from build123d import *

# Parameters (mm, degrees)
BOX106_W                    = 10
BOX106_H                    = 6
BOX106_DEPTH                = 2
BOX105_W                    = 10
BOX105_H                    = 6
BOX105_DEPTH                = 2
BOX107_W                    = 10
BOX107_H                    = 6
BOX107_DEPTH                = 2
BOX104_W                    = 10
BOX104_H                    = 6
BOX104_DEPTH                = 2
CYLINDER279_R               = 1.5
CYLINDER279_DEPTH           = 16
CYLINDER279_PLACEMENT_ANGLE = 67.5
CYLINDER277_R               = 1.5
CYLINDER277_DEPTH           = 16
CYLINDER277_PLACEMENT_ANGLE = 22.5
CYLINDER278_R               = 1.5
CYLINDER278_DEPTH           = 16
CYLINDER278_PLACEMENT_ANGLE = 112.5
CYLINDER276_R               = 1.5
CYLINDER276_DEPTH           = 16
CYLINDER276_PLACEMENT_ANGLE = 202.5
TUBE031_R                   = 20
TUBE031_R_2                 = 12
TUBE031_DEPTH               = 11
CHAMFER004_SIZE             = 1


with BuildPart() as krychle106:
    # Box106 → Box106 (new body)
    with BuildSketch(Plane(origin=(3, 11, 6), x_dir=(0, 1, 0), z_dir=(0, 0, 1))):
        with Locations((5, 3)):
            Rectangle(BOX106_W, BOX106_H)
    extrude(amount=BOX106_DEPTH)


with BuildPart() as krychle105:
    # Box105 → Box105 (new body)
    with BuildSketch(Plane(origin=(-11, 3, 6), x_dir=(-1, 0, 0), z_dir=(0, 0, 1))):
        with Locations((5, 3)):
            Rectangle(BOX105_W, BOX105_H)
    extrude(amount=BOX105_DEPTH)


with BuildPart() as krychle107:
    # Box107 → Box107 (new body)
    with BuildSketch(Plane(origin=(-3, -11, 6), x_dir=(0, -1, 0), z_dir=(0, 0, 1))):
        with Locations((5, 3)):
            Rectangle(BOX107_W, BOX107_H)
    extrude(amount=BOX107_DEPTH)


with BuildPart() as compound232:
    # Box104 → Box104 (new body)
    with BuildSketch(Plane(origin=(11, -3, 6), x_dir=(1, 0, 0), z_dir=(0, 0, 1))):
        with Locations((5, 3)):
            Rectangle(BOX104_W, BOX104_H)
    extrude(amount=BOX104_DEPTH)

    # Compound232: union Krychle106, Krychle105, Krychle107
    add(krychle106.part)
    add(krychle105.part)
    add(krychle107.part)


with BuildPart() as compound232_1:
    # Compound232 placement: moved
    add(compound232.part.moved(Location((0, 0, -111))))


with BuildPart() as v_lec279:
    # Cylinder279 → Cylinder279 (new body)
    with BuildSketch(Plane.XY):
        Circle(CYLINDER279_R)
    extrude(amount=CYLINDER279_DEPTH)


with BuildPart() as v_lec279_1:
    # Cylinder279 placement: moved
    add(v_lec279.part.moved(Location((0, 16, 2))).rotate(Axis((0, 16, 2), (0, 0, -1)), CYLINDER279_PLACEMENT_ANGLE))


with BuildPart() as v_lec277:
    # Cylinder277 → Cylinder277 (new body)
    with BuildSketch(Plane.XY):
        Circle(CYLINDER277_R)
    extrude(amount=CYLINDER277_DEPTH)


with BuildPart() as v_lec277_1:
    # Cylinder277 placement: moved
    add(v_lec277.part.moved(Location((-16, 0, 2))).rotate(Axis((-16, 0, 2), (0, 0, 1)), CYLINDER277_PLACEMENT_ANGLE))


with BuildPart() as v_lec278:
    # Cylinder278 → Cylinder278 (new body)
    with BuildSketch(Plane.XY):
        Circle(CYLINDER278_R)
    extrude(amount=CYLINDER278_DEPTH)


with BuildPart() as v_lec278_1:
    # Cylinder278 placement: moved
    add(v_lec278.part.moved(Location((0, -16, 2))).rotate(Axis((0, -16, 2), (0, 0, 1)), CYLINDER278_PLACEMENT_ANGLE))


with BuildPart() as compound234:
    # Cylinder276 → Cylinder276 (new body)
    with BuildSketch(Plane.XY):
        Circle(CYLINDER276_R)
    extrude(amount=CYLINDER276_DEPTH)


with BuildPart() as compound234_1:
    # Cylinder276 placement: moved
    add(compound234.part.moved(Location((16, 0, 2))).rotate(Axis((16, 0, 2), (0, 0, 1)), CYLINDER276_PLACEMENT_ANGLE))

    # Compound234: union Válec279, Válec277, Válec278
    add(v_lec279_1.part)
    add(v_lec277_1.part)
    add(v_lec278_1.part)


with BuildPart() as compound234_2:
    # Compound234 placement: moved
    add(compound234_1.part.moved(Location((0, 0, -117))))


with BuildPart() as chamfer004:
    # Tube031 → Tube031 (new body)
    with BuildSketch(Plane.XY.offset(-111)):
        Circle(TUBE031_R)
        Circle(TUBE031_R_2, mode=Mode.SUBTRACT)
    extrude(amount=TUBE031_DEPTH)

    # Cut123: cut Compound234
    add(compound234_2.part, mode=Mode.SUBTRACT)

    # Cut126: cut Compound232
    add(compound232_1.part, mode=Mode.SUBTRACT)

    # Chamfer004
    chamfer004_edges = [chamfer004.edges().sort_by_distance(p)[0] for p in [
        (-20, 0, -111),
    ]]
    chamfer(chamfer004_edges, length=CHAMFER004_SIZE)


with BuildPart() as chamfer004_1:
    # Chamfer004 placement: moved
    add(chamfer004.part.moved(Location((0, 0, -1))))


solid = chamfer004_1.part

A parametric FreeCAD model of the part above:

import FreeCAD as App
import Part
import Sketcher


def edges_at(feature, points):
    """Names of the edges that pass closest to the given points."""
    edges = feature.Shape.Edges
    near = lambda p: min(range(len(edges)), key=lambda i: edges[i].distToShape(Part.Vertex(*p))[0])
    return sorted({f"Edge{near(p) + 1}" for p in points})

doc = App.newDocument("Part")
body = doc.addObject("PartDesign::Body", "Body")

sketch1 = body.newObject("Sketcher::SketchObject", "Sketch")
sketch1.AttachmentSupport = (doc.getObject("XY_Plane"), [""])
sketch1.MapMode = "FlatFace"
sketch1.AttachmentOffset = App.Placement(App.Vector(0, 0, 6), App.Rotation())
sketch1.addGeometry(Part.LineSegment(App.Vector(-3, 11, 0), App.Vector(3, 11, 0)), False)
sketch1.addGeometry(Part.LineSegment(App.Vector(3, 11, 0), App.Vector(3, 21, 0)), False)
sketch1.addGeometry(Part.LineSegment(App.Vector(3, 21, 0), App.Vector(-3, 21, 0)), False)
sketch1.addGeometry(Part.LineSegment(App.Vector(-3, 21, 0), App.Vector(-3, 11, 0)), False)
sketch1.addConstraint(Sketcher.Constraint("Coincident", 0, 2, 1, 1))
sketch1.addConstraint(Sketcher.Constraint("Coincident", 1, 2, 2, 1))
sketch1.addConstraint(Sketcher.Constraint("Coincident", 2, 2, 3, 1))
sketch1.addConstraint(Sketcher.Constraint("Coincident", 3, 2, 0, 1))
sketch1.addConstraint(Sketcher.Constraint("Horizontal", 0))
sketch1.addConstraint(Sketcher.Constraint("Vertical", 1))
sketch1.addConstraint(Sketcher.Constraint("Horizontal", 2))
sketch1.addConstraint(Sketcher.Constraint("Vertical", 3))
sketch1.addConstraint(Sketcher.Constraint("DistanceX", 0, 1, 0, 2, 6.0))
sketch1.addConstraint(Sketcher.Constraint("DistanceY", 1, 1, 1, 2, 10.0))
sketch1.addConstraint(Sketcher.Constraint("DistanceX", -1, 1, 0, 2, 3.0))
sketch1.addConstraint(Sketcher.Constraint("DistanceY", -1, 1, 0, 2, 11.0))
pad1 = body.newObject("PartDesign::Pad", "Pad")
pad1.Profile = sketch1
pad1.Length = 2
body2 = doc.addObject("PartDesign::Body", "Body001")

sketch2 = body2.newObject("Sketcher::SketchObject", "Sketch001")
sketch2.AttachmentSupport = (doc.getObject("XY_Plane001"), [""])
sketch2.MapMode = "FlatFace"
sketch2.AttachmentOffset = App.Placement(App.Vector(0, 0, 6), App.Rotation())
sketch2.addGeometry(Part.LineSegment(App.Vector(-11, -3, 0), App.Vector(-11, 3, 0)), False)
sketch2.addGeometry(Part.LineSegment(App.Vector(-11, 3, 0), App.Vector(-21, 3, 0)), False)
sketch2.addGeometry(Part.LineSegment(App.Vector(-21, 3, 0), App.Vector(-21, -3, 0)), False)
sketch2.addGeometry(Part.LineSegment(App.Vector(-21, -3, 0), App.Vector(-11, -3, 0)), False)
sketch2.addConstraint(Sketcher.Constraint("Coincident", 0, 2, 1, 1))
sketch2.addConstraint(Sketcher.Constraint("Coincident", 1, 2, 2, 1))
sketch2.addConstraint(Sketcher.Constraint("Coincident", 2, 2, 3, 1))
sketch2.addConstraint(Sketcher.Constraint("Coincident", 3, 2, 0, 1))
sketch2.addConstraint(Sketcher.Constraint("Vertical", 0))
sketch2.addConstraint(Sketcher.Constraint("Horizontal", 1))
sketch2.addConstraint(Sketcher.Constraint("Vertical", 2))
sketch2.addConstraint(Sketcher.Constraint("Horizontal", 3))
sketch2.addConstraint(Sketcher.Constraint("DistanceX", 1, 2, 1, 1, 10.0))
sketch2.addConstraint(Sketcher.Constraint("DistanceY", 0, 1, 0, 2, 6.0))
sketch2.addConstraint(Sketcher.Constraint("DistanceX", 0, 2, -1, 1, 11.0))
sketch2.addConstraint(Sketcher.Constraint("DistanceY", -1, 1, 0, 2, 3.0))
pad2 = body2.newObject("PartDesign::Pad", "Pad001")
pad2.Profile = sketch2
pad2.Length = 2
body3 = doc.addObject("PartDesign::Body", "Body002")

sketch3 = body3.newObject("Sketcher::SketchObject", "Sketch002")
sketch3.AttachmentSupport = (doc.getObject("XY_Plane002"), [""])
sketch3.MapMode = "FlatFace"
sketch3.AttachmentOffset = App.Placement(App.Vector(0, 0, 6), App.Rotation())
sketch3.addGeometry(Part.LineSegment(App.Vector(3, -11, 0), App.Vector(-3, -11, 0)), False)
sketch3.addGeometry(Part.LineSegment(App.Vector(-3, -11, 0), App.Vector(-3, -21, 0)), False)
sketch3.addGeometry(Part.LineSegment(App.Vector(-3, -21, 0), App.Vector(3, -21, 0)), False)
sketch3.addGeometry(Part.LineSegment(App.Vector(3, -21, 0), App.Vector(3, -11, 0)), False)
sketch3.addConstraint(Sketcher.Constraint("Coincident", 0, 2, 1, 1))
sketch3.addConstraint(Sketcher.Constraint("Coincident", 1, 2, 2, 1))
sketch3.addConstraint(Sketcher.Constraint("Coincident", 2, 2, 3, 1))
sketch3.addConstraint(Sketcher.Constraint("Coincident", 3, 2, 0, 1))
sketch3.addConstraint(Sketcher.Constraint("Horizontal", 0))
sketch3.addConstraint(Sketcher.Constraint("Vertical", 1))
sketch3.addConstraint(Sketcher.Constraint("Horizontal", 2))
sketch3.addConstraint(Sketcher.Constraint("Vertical", 3))
sketch3.addConstraint(Sketcher.Constraint("DistanceX", 0, 2, 0, 1, 6.0))
sketch3.addConstraint(Sketcher.Constraint("DistanceY", 1, 2, 1, 1, 10.0))
sketch3.addConstraint(Sketcher.Constraint("DistanceX", 0, 2, -1, 1, 3.0))
sketch3.addConstraint(Sketcher.Constraint("DistanceY", 0, 2, -1, 1, 11.0))
pad3 = body3.newObject("PartDesign::Pad", "Pad002")
pad3.Profile = sketch3
pad3.Length = 2
body4 = doc.addObject("PartDesign::Body", "Body003")
body4.AllowCompound = True

sketch4 = body4.newObject("Sketcher::SketchObject", "Sketch003")
sketch4.AttachmentSupport = (doc.getObject("XY_Plane003"), [""])
sketch4.MapMode = "FlatFace"
sketch4.AttachmentOffset = App.Placement(App.Vector(0, 0, 6), App.Rotation())
sketch4.addGeometry(Part.LineSegment(App.Vector(11, 3, 0), App.Vector(11, -3, 0)), False)
sketch4.addGeometry(Part.LineSegment(App.Vector(11, -3, 0), App.Vector(21, -3, 0)), False)
sketch4.addGeometry(Part.LineSegment(App.Vector(21, -3, 0), App.Vector(21, 3, 0)), False)
sketch4.addGeometry(Part.LineSegment(App.Vector(21, 3, 0), App.Vector(11, 3, 0)), False)
sketch4.addConstraint(Sketcher.Constraint("Coincident", 0, 2, 1, 1))
sketch4.addConstraint(Sketcher.Constraint("Coincident", 1, 2, 2, 1))
sketch4.addConstraint(Sketcher.Constraint("Coincident", 2, 2, 3, 1))
sketch4.addConstraint(Sketcher.Constraint("Coincident", 3, 2, 0, 1))
sketch4.addConstraint(Sketcher.Constraint("Vertical", 0))
sketch4.addConstraint(Sketcher.Constraint("Horizontal", 1))
sketch4.addConstraint(Sketcher.Constraint("Vertical", 2))
sketch4.addConstraint(Sketcher.Constraint("Horizontal", 3))
sketch4.addConstraint(Sketcher.Constraint("DistanceX", 1, 1, 1, 2, 10.0))
sketch4.addConstraint(Sketcher.Constraint("DistanceY", 0, 2, 0, 1, 6.0))
sketch4.addConstraint(Sketcher.Constraint("DistanceX", -1, 1, 0, 2, 11.0))
sketch4.addConstraint(Sketcher.Constraint("DistanceY", 0, 2, -1, 1, 3.0))
pad4 = body4.newObject("PartDesign::Pad", "Pad003")
pad4.Profile = sketch4
pad4.Length = 2
doc.recompute()

boolean = body4.newObject("PartDesign::Boolean", "Boolean")
boolean.Type = "Fuse"
boolean.addObjects([body])
doc.recompute()

boolean2 = body4.newObject("PartDesign::Boolean", "Boolean001")
boolean2.Type = "Fuse"
boolean2.addObjects([body2])
doc.recompute()

boolean3 = body4.newObject("PartDesign::Boolean", "Boolean002")
boolean3.Type = "Fuse"
boolean3.addObjects([body3])
body5 = doc.addObject("PartDesign::Body", "Body004")
body5.AllowCompound = True
doc.recompute()

body4.Placement = App.Placement(App.Vector(0, 0, -111), App.Rotation(App.Vector(0, 0, 1), 0))
boolean4 = body5.newObject("PartDesign::Boolean", "Boolean003")
boolean4.Type = "Fuse"
boolean4.addObjects([body4])
body6 = doc.addObject("PartDesign::Body", "Body005")

sketch5 = body6.newObject("Sketcher::SketchObject", "Sketch004")
sketch5.AttachmentSupport = (doc.getObject("XY_Plane005"), [""])
sketch5.MapMode = "FlatFace"
sketch5.addGeometry(Part.Circle(App.Vector(0, 0, 0), App.Vector(0, 0, 1), 1.5), False)
sketch5.addConstraint(Sketcher.Constraint("Coincident", 0, 3, -1, 1))
sketch5.addConstraint(Sketcher.Constraint("Diameter", 0, 3.0))
pad5 = body6.newObject("PartDesign::Pad", "Pad004")
pad5.Profile = sketch5
pad5.Length = 16
body7 = doc.addObject("PartDesign::Body", "Body006")
doc.recompute()

body6.Placement = App.Placement(App.Vector(0, 16, 2), App.Rotation(App.Vector(0, 0, -1), 67.5))
boolean5 = body7.newObject("PartDesign::Boolean", "Boolean004")
boolean5.Type = "Fuse"
boolean5.addObjects([body6])
body8 = doc.addObject("PartDesign::Body", "Body007")

sketch6 = body8.newObject("Sketcher::SketchObject", "Sketch005")
sketch6.AttachmentSupport = (doc.getObject("XY_Plane007"), [""])
sketch6.MapMode = "FlatFace"
sketch6.addGeometry(Part.Circle(App.Vector(0, 0, 0), App.Vector(0, 0, 1), 1.5), False)
sketch6.addConstraint(Sketcher.Constraint("Coincident", 0, 3, -1, 1))
sketch6.addConstraint(Sketcher.Constraint("Diameter", 0, 3.0))
pad6 = body8.newObject("PartDesign::Pad", "Pad005")
pad6.Profile = sketch6
pad6.Length = 16
body9 = doc.addObject("PartDesign::Body", "Body008")
doc.recompute()

body8.Placement = App.Placement(App.Vector(-16, 0, 2), App.Rotation(App.Vector(0, 0, 1), 22.5))
boolean6 = body9.newObject("PartDesign::Boolean", "Boolean005")
boolean6.Type = "Fuse"
boolean6.addObjects([body8])
body10 = doc.addObject("PartDesign::Body", "Body009")

sketch7 = body10.newObject("Sketcher::SketchObject", "Sketch006")
sketch7.AttachmentSupport = (doc.getObject("XY_Plane009"), [""])
sketch7.MapMode = "FlatFace"
sketch7.addGeometry(Part.Circle(App.Vector(0, 0, 0), App.Vector(0, 0, 1), 1.5), False)
sketch7.addConstraint(Sketcher.Constraint("Coincident", 0, 3, -1, 1))
sketch7.addConstraint(Sketcher.Constraint("Diameter", 0, 3.0))
pad7 = body10.newObject("PartDesign::Pad", "Pad006")
pad7.Profile = sketch7
pad7.Length = 16
body11 = doc.addObject("PartDesign::Body", "Body010")
doc.recompute()

body10.Placement = App.Placement(App.Vector(0, -16, 2), App.Rotation(App.Vector(0, 0, 1), 112.5))
boolean7 = body11.newObject("PartDesign::Boolean", "Boolean006")
boolean7.Type = "Fuse"
boolean7.addObjects([body10])
body12 = doc.addObject("PartDesign::Body", "Body011")

sketch8 = body12.newObject("Sketcher::SketchObject", "Sketch007")
sketch8.AttachmentSupport = (doc.getObject("XY_Plane011"), [""])
sketch8.MapMode = "FlatFace"
sketch8.addGeometry(Part.Circle(App.Vector(0, 0, 0), App.Vector(0, 0, 1), 1.5), False)
sketch8.addConstraint(Sketcher.Constraint("Coincident", 0, 3, -1, 1))
sketch8.addConstraint(Sketcher.Constraint("Diameter", 0, 3.0))
pad8 = body12.newObject("PartDesign::Pad", "Pad007")
pad8.Profile = sketch8
pad8.Length = 16
body13 = doc.addObject("PartDesign::Body", "Body012")
body13.AllowCompound = True
doc.recompute()

body12.Placement = App.Placement(App.Vector(16, 0, 2), App.Rotation(App.Vector(0, 0, 1), 202.5))
boolean8 = body13.newObject("PartDesign::Boolean", "Boolean007")
boolean8.Type = "Fuse"
boolean8.addObjects([body12])
doc.recompute()

boolean9 = body13.newObject("PartDesign::Boolean", "Boolean008")
boolean9.Type = "Fuse"
boolean9.addObjects([body7])
doc.recompute()

boolean10 = body13.newObject("PartDesign::Boolean", "Boolean009")
boolean10.Type = "Fuse"
boolean10.addObjects([body9])
doc.recompute()

boolean11 = body13.newObject("PartDesign::Boolean", "Boolean010")
boolean11.Type = "Fuse"
boolean11.addObjects([body11])
body14 = doc.addObject("PartDesign::Body", "Body013")
body14.AllowCompound = True
doc.recompute()

body13.Placement = App.Placement(App.Vector(0, 0, -117), App.Rotation(App.Vector(0, 0, 1), 0))
boolean12 = body14.newObject("PartDesign::Boolean", "Boolean011")
boolean12.Type = "Fuse"
boolean12.addObjects([body13])
body15 = doc.addObject("PartDesign::Body", "Body014")

sketch9 = body15.newObject("Sketcher::SketchObject", "Sketch008")
sketch9.AttachmentSupport = (doc.getObject("XY_Plane014"), [""])
sketch9.MapMode = "FlatFace"
sketch9.AttachmentOffset = App.Placement(App.Vector(0, 0, -111), App.Rotation())
sketch9.addGeometry(Part.Circle(App.Vector(0, 0, 0), App.Vector(0, 0, 1), 20), False)
sketch9.addGeometry(Part.Circle(App.Vector(0, 0, 0), App.Vector(0, 0, 1), 12), False)
sketch9.addConstraint(Sketcher.Constraint("Coincident", 0, 3, -1, 1))
sketch9.addConstraint(Sketcher.Constraint("Coincident", 1, 3, -1, 1))
sketch9.addConstraint(Sketcher.Constraint("Diameter", 0, 40.0))
sketch9.addConstraint(Sketcher.Constraint("Diameter", 1, 24.0))
pad9 = body15.newObject("PartDesign::Pad", "Pad008")
pad9.Profile = sketch9
pad9.Length = 11
doc.recompute()

boolean13 = body15.newObject("PartDesign::Boolean", "Boolean012")
boolean13.Type = "Cut"
boolean13.addObjects([body14])
doc.recompute()

boolean14 = body15.newObject("PartDesign::Boolean", "Boolean013")
boolean14.Type = "Cut"
boolean14.addObjects([body5])
doc.recompute()

chamfer = body15.newObject("PartDesign::Chamfer", "Chamfer")
chamfer.Base = (boolean14, edges_at(boolean14, [(-20, 0, -111)]))
chamfer.Size = 1
body16 = doc.addObject("PartDesign::Body", "Body015")
doc.recompute()

body15.Placement = App.Placement(App.Vector(0, 0, -1), App.Rotation(App.Vector(0, 0, 1), 0))
boolean15 = body16.newObject("PartDesign::Boolean", "Boolean014")
boolean15.Type = "Fuse"
boolean15.addObjects([body15])

doc.recompute()
